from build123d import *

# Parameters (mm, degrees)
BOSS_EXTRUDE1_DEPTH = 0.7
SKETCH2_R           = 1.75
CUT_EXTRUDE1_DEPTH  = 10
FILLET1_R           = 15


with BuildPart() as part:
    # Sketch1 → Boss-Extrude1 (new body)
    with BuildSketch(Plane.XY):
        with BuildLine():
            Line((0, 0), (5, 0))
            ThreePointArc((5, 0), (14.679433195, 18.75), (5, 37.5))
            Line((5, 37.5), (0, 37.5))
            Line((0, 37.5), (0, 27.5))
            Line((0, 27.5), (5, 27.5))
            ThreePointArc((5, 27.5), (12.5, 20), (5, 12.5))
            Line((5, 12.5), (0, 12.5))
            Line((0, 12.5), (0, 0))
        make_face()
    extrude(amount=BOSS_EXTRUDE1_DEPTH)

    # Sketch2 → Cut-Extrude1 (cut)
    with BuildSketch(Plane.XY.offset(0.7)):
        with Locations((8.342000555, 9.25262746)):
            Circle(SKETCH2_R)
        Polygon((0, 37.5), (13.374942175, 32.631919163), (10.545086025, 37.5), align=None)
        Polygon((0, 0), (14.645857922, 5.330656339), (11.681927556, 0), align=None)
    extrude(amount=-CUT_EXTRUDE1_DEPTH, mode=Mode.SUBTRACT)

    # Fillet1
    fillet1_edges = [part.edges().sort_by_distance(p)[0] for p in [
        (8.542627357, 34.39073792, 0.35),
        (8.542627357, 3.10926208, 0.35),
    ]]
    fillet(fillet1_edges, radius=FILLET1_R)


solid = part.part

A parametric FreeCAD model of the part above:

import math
import FreeCAD as App
import Part
import Sketcher
Q = App.Units.Quantity


def edges_at(feature, points):
    """Names of the edges that pass closest to the given points."""
    edges = feature.Shape.Edges
    near = lambda p: min(range(len(edges)), key=lambda i: edges[i].distToShape(Part.Vertex(*p))[0])
    return sorted({f"Edge{near(p) + 1}" for p in points})


def add_polygon(sketch, points):
    """Adds a closed chain of lines whose ends are joined by coincident constraints."""
    first, n = sketch.GeometryCount, len(points)
    for a, b in zip(points, points[1:] + points[:1]):
        sketch.addGeometry(Part.LineSegment(App.Vector(*a, 0), App.Vector(*b, 0)), False)
    for i in range(n):
        sketch.addConstraint(Sketcher.Constraint("Coincident", first + i, 2, first + (i + 1) % n, 1))

doc = App.newDocument("Part")
body = doc.addObject("PartDesign::Body", "Body")

sketch1 = body.newObject("Sketcher::SketchObject", "Sketch")
sketch1.AttachmentSupport = (doc.getObject("XY_Plane"), [""])
sketch1.MapMode = "FlatFace"
sketch1.addGeometry([
    Part.LineSegment(App.Vector(0, 0, 0), App.Vector(5, 0, 0)),
    Part.ArcOfCircle(Part.Circle(App.Vector(-8.320567, 18.75, 0), App.Vector(0, 0, 1), 23), math.radians(-54.608863), math.radians(54.608863)),
    Part.LineSegment(App.Vector(5, 37.5, 0), App.Vector(0, 37.5, 0)),
    Part.LineSegment(App.Vector(0, 37.5, 0), App.Vector(0, 27.5, 0)),
    Part.LineSegment(App.Vector(0, 27.5, 0), App.Vector(5, 27.5, 0)),
    Part.ArcOfCircle(Part.Circle(App.Vector(5, 20, 0), App.Vector(0, 0, 1), 7.5), math.radians(-90), math.radians(90)),
    Part.LineSegment(App.Vector(5, 12.5, 0), App.Vector(0, 12.5, 0)),
    Part.LineSegment(App.Vector(0, 12.5, 0), App.Vector(0, 0, 0)),
], False)
sketch1.addConstraint([
    Sketcher.Constraint("Coincident", 0, 2, 1, 1),
    Sketcher.Constraint("Coincident", 1, 2, 2, 1),
    Sketcher.Constraint("Coincident", 2, 2, 3, 1),
    Sketcher.Constraint("Coincident", 3, 2, 4, 1),
    Sketcher.Constraint("Tangent", 4, 2, 5, 2),
    Sketcher.Constraint("Tangent", 5, 1, 6, 1),
    Sketcher.Constraint("Coincident", 6, 2, 7, 1),
    Sketcher.Constraint("Coincident", 7, 2, 0, 1),
    Sketcher.Constraint("Horizontal", 0),
    Sketcher.Constraint("Horizontal", 2),
    Sketcher.Constraint("Vertical", 3),
    Sketcher.Constraint("Horizontal", 4),
    Sketcher.Constraint("Horizontal", 6),
    Sketcher.Constraint("Vertical", 7),
    Sketcher.Constraint("Coincident", 7, 2, -1, 1),
    Sketcher.Constraint("PointOnObject", 2, 2, -2),
    Sketcher.Constraint("Vertical", 5, 3, 0, 2),
    Sketcher.Constraint("Vertical", 0, 2, 1, 2),
    Sketcher.Constraint("Radius", 1, Q("23 mm")),
    Sketcher.Constraint("Radius", 5, Q("7.5 mm")),
    Sketcher.Constraint("DistanceX", 0, 1, 0, 2, Q("5 mm")),
    Sketcher.Constraint("DistanceY", 3, 2, 3, 1, Q("10 mm")),
    Sketcher.Constraint("DistanceY", 7, 2, 7, 1, Q("12.5 mm")),
])
pad1 = body.newObject("PartDesign::Pad", "Pad")
pad1.Profile = sketch1
pad1.Length = 0.7

sketch2 = body.newObject("Sketcher::SketchObject", "Sketch001")
sketch2.AttachmentSupport = (doc.getObject("XY_Plane"), [""])
sketch2.MapMode = "FlatFace"
sketch2.AttachmentOffset = App.Placement(App.Vector(0, 0, 0.7), App.Rotation())
sketch2.addGeometry(Part.Circle(App.Vector(8.342001, 9.252627, 0), App.Vector(0, 0, 1), 1.75), False)
add_polygon(sketch2, [(0, 37.5), (13.374942, 32.631919), (10.545086, 37.5)])
add_polygon(sketch2, [(14.645858, 5.330656), (0, 0), (11.681928, 0)])
sketch2.addConstraint([
    Sketcher.Constraint("Horizontal", 3),
    Sketcher.Constraint("Horizontal", 5),
    Sketcher.Constraint("Coincident", 4, 2, -1, 1),
    Sketcher.Constraint("PointOnObject", 3, 2, -2),
    Sketcher.Constraint("Diameter", 0, Q("3.5 mm")),
    Sketcher.Constraint("Angle", 1, Q("-20 deg")),
    Sketcher.Constraint("Angle", 4, Q("-160 deg")),
    Sketcher.Constraint("DistanceY", -1, 1, 2, 2, Q("37.5 mm")),
    Sketcher.Constraint("DistanceX", -1, 1, 0, 3, Q("8.342001 mm")),
    Sketcher.Constraint("DistanceX", 3, 2, 3, 1, Q("10.545086 mm")),
    Sketcher.Constraint("DistanceX", 5, 1, 5, 2, Q("11.681928 mm")),
    Sketcher.Constraint("DistanceY", -1, 1, 1, 2, Q("32.631919 mm")),
    Sketcher.Constraint("DistanceY", 0, 3, 1, 2, Q("23.379292 mm")),
    Sketcher.Constraint("DistanceX", 5, 2, 6, 2, Q("2.96393 mm")),
])
pocket1 = body.newObject("PartDesign::Pocket", "Pocket")
pocket1.Profile = sketch2
pocket1.Length = 10
doc.recompute()

fillet = body.newObject("PartDesign::Fillet", "Fillet")
fillet.Base = (pocket1, edges_at(pocket1, [(8.543, 34.391, 0.35), (8.543, 3.109, 0.35)]))
fillet.Radius = 15

doc.recompute()
